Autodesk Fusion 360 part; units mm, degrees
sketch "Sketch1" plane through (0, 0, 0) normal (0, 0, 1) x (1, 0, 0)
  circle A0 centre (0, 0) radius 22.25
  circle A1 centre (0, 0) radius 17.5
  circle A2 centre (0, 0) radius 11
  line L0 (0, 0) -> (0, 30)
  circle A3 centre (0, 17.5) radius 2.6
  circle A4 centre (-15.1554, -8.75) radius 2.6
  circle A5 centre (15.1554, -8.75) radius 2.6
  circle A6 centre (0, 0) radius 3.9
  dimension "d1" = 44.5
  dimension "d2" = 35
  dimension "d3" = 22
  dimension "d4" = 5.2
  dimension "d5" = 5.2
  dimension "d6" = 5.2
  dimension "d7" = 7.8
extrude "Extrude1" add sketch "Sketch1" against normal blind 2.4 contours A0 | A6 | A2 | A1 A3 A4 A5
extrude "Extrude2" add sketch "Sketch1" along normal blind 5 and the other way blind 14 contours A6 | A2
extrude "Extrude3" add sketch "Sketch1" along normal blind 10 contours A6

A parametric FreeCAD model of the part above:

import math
import FreeCAD as App
import Part
import Sketcher

doc = App.newDocument("Part")
body = doc.addObject("PartDesign::Body", "Body")

# Sketch on XY plane
sketch1 = body.newObject("Sketcher::SketchObject", "Sketch")
sketch1.AttachmentSupport = (doc.getObject("XY_Plane"), [""])
sketch1.MapMode = "FlatFace"
sketch1.addGeometry([
    Part.Circle(App.Vector(0, 0, 0), App.Vector(0, 0, 1), 22.2),  # 0
    Part.ArcOfCircle(Part.Circle(App.Vector(0, 17.5, 0), App.Vector(0, 0, 1), 2.6), math.radians(-90), math.radians(90)),  # 1
    Part.ArcOfCircle(Part.Circle(App.Vector(0, 17.5, 0), App.Vector(0, 0, 1), 2.6), math.radians(90), math.radians(270)),  # 2
    Part.Circle(App.Vector(-15.2, -8.8, 0), App.Vector(0, 0, 1), 2.6),  # 3
    Part.Circle(App.Vector(15.2, -8.8, 0), App.Vector(0, 0, 1), 2.6),  # 4
], False)
sketch1.addConstraint([
    Sketcher.Constraint("Tangent", 1, 1, 2, 2),
    Sketcher.Constraint("Coincident", 2, 1, 1, 2),
    Sketcher.Constraint("Coincident", 0, 3, -1, 1),
    Sketcher.Constraint("Equal", 2, 3),
    Sketcher.Constraint("Equal", 3, 4),
    Sketcher.Constraint("Symmetric", 3, 3, 4, 3, -2),
    Sketcher.Constraint("PointOnObject", 1, 3, -2),
    Sketcher.Constraint("PointOnObject", 1, 1, -2),
    Sketcher.Constraint("PointOnObject", 2, 1, -2),
    Sketcher.Constraint("Diameter", 0, 44.5),
    Sketcher.Constraint("Diameter", 3, 5.2),
    Sketcher.Constraint("DistanceY", -1, 1, 1, 3, 17.5),
    Sketcher.Constraint("DistanceY", 3, 3, -1, 1, 8.75),
    Sketcher.Constraint("DistanceX", 3, 3, -1, 1, 15.1554),
])
pad1 = body.newObject("PartDesign::Pad", "Pad")
pad1.Profile = sketch1
pad1.Length = 2.4
pad1.Reversed = True

# Sketch on XY plane
sketch2 = body.newObject("Sketcher::SketchObject", "Sketch001")
sketch2.AttachmentSupport = (doc.getObject("XY_Plane"), [""])
sketch2.MapMode = "FlatFace"
sketch2.addGeometry(Part.Circle(App.Vector(0, 0, 0), App.Vector(0, 0, 1), 11), False)
sketch2.addConstraint([
    Sketcher.Constraint("Coincident", 0, 3, -1, 1),
    Sketcher.Constraint("Diameter", 0, 22.0),
])
pad2 = body.newObject("PartDesign::Pad", "Pad001")
pad2.Profile = sketch2
pad2.Type = "TwoLengths"
pad2.Length = 5
pad2.Length2 = 14

# Sketch on XY plane
sketch3 = body.newObject("Sketcher::SketchObject", "Sketch002")
sketch3.AttachmentSupport = (doc.getObject("XY_Plane"), [""])
sketch3.MapMode = "FlatFace"
sketch3.addGeometry(Part.Circle(App.Vector(0, 0, 0), App.Vector(0, 0, 1), 3.9), False)
sketch3.addConstraint([
    Sketcher.Constraint("Coincident", 0, 3, -1, 1),
    Sketcher.Constraint("Diameter", 0, 7.8),
])
pad3 = body.newObject("PartDesign::Pad", "Pad002")
pad3.Profile = sketch3
pad3.Length = 10

doc.recompute()
